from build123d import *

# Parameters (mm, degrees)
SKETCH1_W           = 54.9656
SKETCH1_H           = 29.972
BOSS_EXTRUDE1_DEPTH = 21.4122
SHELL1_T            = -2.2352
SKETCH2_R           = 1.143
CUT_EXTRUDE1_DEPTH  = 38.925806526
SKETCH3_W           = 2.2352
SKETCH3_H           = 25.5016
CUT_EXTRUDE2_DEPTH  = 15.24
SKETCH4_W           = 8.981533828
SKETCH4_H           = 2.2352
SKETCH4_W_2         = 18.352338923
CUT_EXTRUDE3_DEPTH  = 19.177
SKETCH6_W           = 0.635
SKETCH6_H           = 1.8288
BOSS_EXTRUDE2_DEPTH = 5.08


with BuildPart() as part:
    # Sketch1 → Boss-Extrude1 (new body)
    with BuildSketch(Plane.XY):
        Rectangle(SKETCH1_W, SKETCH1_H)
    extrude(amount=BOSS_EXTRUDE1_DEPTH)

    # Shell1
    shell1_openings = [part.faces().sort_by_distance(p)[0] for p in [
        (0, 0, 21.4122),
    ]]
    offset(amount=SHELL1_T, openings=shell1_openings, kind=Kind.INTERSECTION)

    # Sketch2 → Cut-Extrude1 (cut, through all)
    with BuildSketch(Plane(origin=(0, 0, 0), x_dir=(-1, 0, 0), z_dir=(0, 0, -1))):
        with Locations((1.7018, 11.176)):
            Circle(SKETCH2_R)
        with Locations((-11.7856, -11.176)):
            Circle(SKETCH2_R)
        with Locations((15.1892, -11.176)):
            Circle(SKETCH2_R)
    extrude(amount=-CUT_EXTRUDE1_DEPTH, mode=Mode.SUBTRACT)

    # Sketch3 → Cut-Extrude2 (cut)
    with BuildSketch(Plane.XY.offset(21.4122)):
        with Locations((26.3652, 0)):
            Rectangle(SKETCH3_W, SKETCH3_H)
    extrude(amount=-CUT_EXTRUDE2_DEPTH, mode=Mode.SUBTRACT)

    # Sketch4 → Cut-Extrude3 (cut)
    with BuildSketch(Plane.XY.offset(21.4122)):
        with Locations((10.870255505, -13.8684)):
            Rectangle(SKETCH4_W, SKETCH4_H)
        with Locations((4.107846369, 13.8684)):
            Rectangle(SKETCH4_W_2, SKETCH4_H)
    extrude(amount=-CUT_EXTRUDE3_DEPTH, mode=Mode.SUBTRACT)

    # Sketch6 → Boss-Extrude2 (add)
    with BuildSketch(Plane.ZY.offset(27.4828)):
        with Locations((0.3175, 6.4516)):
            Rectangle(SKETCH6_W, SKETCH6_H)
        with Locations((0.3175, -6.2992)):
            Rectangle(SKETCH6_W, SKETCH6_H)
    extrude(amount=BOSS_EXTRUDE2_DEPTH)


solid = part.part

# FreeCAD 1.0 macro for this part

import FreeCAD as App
import Part
import Sketcher

V = App.Vector
Q = App.Units.Quantity


def faces_at(feature, points):
    """Names of the faces that lie closest to the given points."""
    faces = feature.Shape.Faces
    near = lambda p: min(range(len(faces)), key=lambda i: faces[i].distToShape(Part.Vertex(*p))[0])
    return sorted({f"Face{near(p) + 1}" for p in points})


def add_polygon(sketch, points):
    """Adds a closed chain of lines whose ends are joined by coincident constraints."""
    first, n = sketch.GeometryCount, len(points)
    for a, b in zip(points, points[1:] + points[:1]):
        sketch.addGeometry(Part.LineSegment(App.Vector(*a, 0), App.Vector(*b, 0)), False)
    for i in range(n):
        sketch.addConstraint(Sketcher.Constraint("Coincident", first + i, 2, first + (i + 1) % n, 1))

doc = App.newDocument("Part")
body = doc.addObject("PartDesign::Body", "Body")

sketch1 = doc.addObject("Sketcher::SketchObject", "Sketch")
body.addObject(sketch1)
sketch1.AttachmentSupport = (doc.XY_Plane, [""])
sketch1.MapMode = "FlatFace"
add_polygon(sketch1, [(-27.4828, 14.986), (-27.4828, -14.986), (27.4828, -14.986), (27.4828, 14.986)])
sketch1.addConstraint([
    Sketcher.Constraint("Vertical", 0),
    Sketcher.Constraint("Horizontal", 1),
    Sketcher.Constraint("Vertical", 2),
    Sketcher.Constraint("Horizontal", 3),
    Sketcher.Constraint("Symmetric", 0, 2, 2, 2, -1, 1),
    Sketcher.Constraint("DistanceY", 0, 2, 0, 1, Q("1.18 in")),
    Sketcher.Constraint("DistanceX", 1, 1, 1, 2, Q("2.164 in")),
])
pad1 = doc.addObject("PartDesign::Pad", "Pad")
body.addObject(pad1)
pad1.Profile = sketch1
pad1.Length = Q("0.843 in")
doc.recompute()

thickness = doc.addObject("PartDesign::Thickness", "Thickness")
body.addObject(thickness)
thickness.Base = (pad1, faces_at(pad1, [(0, 0, 21.412)]))
thickness.Value = Q("0.088 in")
thickness.Reversed = True
thickness.Join = "Intersection"

sketch2 = doc.addObject("Sketcher::SketchObject", "Sketch001")
body.addObject(sketch2)
sketch2.AttachmentSupport = (doc.XY_Plane, [""])
sketch2.MapMode = "FlatFace"
sketch2.addGeometry([
    Part.Circle(V(-1.7018, 11.176, 0), V(0, 0, 1), 1.143),
    Part.Circle(V(11.7856, -11.176, 0), V(0, 0, 1), 1.143),
    Part.Circle(V(-15.1892, -11.176, 0), V(0, 0, 1), 1.143),
], False)
sketch2.addConstraint([
    Sketcher.Constraint("Equal", 0, 1),
    Sketcher.Constraint("Equal", 1, 2),
    Sketcher.Constraint("Horizontal", 1, 3, 2, 3),
    Sketcher.Constraint("Diameter", 0, Q("0.09 in")),
    Sketcher.Constraint("DistanceY", -1, 1, 0, 3, Q("0.44 in")),
    Sketcher.Constraint("DistanceY", 1, 3, -1, 1, Q("0.44 in")),
    Sketcher.Constraint("DistanceX", 0, 3, -1, 1, Q("0.067 in")),
    Sketcher.Constraint("DistanceX", -1, 1, 1, 3, Q("0.464 in")),
    Sketcher.Constraint("DistanceX", 2, 3, -1, 1, Q("0.598 in")),
])
pocket1 = doc.addObject("PartDesign::Pocket", "Pocket")
body.addObject(pocket1)
pocket1.Profile = sketch2
pocket1.Type = "ThroughAll"
pocket1.Reversed = True

sketch3 = doc.addObject("Sketcher::SketchObject", "Sketch002")
body.addObject(sketch3)
sketch3.AttachmentSupport = (doc.XY_Plane, [""])
sketch3.MapMode = "FlatFace"
sketch3.AttachmentOffset = App.Placement(V(0, 0, 0.843 * 25.4), App.Rotation())
add_polygon(sketch3, [(25.2476, 12.7508), (25.2476, -12.7508), (27.4828, -12.7508), (27.4828, 12.7508)])
sketch3.addConstraint([
    Sketcher.Constraint("Vertical", 0),
    Sketcher.Constraint("Horizontal", 1),
    Sketcher.Constraint("Vertical", 2),
    Sketcher.Constraint("Horizontal", 3),
    Sketcher.Constraint("DistanceX", 1, 1, 1, 2, Q("0.088 in")),
    Sketcher.Constraint("DistanceY", 0, 2, 0, 1, Q("1.004 in")),
    Sketcher.Constraint("DistanceX", -1, 1, 0, 2, Q("0.994 in")),
    Sketcher.Constraint("DistanceY", 0, 2, -1, 1, Q("0.502 in")),
])
pocket2 = doc.addObject("PartDesign::Pocket", "Pocket001")
body.addObject(pocket2)
pocket2.Profile = sketch3
pocket2.Length = Q("0.6 in")

sketch4 = doc.addObject("Sketcher::SketchObject", "Sketch003")
body.addObject(sketch4)
sketch4.AttachmentSupport = (doc.XY_Plane, [""])
sketch4.MapMode = "FlatFace"
sketch4.AttachmentOffset = App.Placement(V(0, 0, 0.843 * 25.4), App.Rotation())
add_polygon(sketch4, [(6.379489, -12.7508), (6.379489, -14.986), (15.361022, -14.986), (15.361022, -12.7508)])
add_polygon(sketch4, [(-5.068323, 14.986), (-5.068323, 12.7508), (13.284016, 12.7508), (13.284016, 14.986)])
sketch4.addConstraint([
    Sketcher.Constraint("Vertical", 0),
    Sketcher.Constraint("Horizontal", 1),
    Sketcher.Constraint("Vertical", 2),
    Sketcher.Constraint("Horizontal", 3),
    Sketcher.Constraint("Vertical", 4),
    Sketcher.Constraint("Horizontal", 5),
    Sketcher.Constraint("Vertical", 6),
    Sketcher.Constraint("Horizontal", 7),
    Sketcher.Constraint("Equal", 2, 4),
    Sketcher.Constraint("DistanceY", 0, 2, 0, 1, Q("0.088 in")),
    Sketcher.Constraint("DistanceY", 0, 2, -1, 1, Q("0.59 in")),
    Sketcher.Constraint("DistanceY", -1, 1, 6, 2, Q("0.59 in")),
    Sketcher.Constraint("DistanceX", 5, 1, 5, 2, Q("18.352339 mm")),
    Sketcher.Constraint("DistanceX", 1, 1, 1, 2, Q("8.981534 mm")),
    Sketcher.Constraint("DistanceX", -1, 1, 0, 2, Q("6.379489 mm")),
    Sketcher.Constraint("DistanceX", 4, 2, 3, 2, Q("11.447812 mm")),
])
pocket3 = doc.addObject("PartDesign::Pocket", "Pocket002")
body.addObject(pocket3)
pocket3.Profile = sketch4
pocket3.Length = Q("0.755 in")

sketch5 = doc.addObject("Sketcher::SketchObject", "Sketch004")
body.addObject(sketch5)
sketch5.AttachmentSupport = (doc.YZ_Plane, [""])
sketch5.MapMode = "FlatFace"
sketch5.AttachmentOffset = App.Placement(V(0, 0, -1.082 * 25.4), App.Rotation())
add_polygon(sketch5, [(7.366, 0), (5.5372, 0), (5.5372, 0.635), (7.366, 0.635)])
add_polygon(sketch5, [(-5.3848, 0), (-7.2136, 0), (-7.2136, 0.635), (-5.3848, 0.635)])
sketch5.addConstraint([
    Sketcher.Constraint("Horizontal", 0),
    Sketcher.Constraint("Vertical", 1),
    Sketcher.Constraint("Horizontal", 2),
    Sketcher.Constraint("Vertical", 3),
    Sketcher.Constraint("Horizontal", 4),
    Sketcher.Constraint("Vertical", 5),
    Sketcher.Constraint("Horizontal", 6),
    Sketcher.Constraint("Vertical", 7),
    Sketcher.Constraint("PointOnObject", 0, 2, -1),
    Sketcher.Constraint("PointOnObject", 4, 2, -1),
    Sketcher.Constraint("Horizontal", 2, 2, 5, 2),
    Sketcher.Constraint("Equal", 2, 4),
    Sketcher.Constraint("DistanceX", 0, 2, 0, 1, Q("0.072 in")),
    Sketcher.Constraint("DistanceY", 1, 1, 1, 2, Q("0.025 in")),
    Sketcher.Constraint("DistanceX", -1, 1, 2, 2, Q("0.29 in")),
    Sketcher.Constraint("DistanceX", 6, 2, 1, 2, Q("0.43 in")),
])
pad2 = doc.addObject("PartDesign::Pad", "Pad001")
body.addObject(pad2)
pad2.Profile = sketch5
pad2.Length = Q("0.2 in")
pad2.Reversed = True

doc.recompute()
